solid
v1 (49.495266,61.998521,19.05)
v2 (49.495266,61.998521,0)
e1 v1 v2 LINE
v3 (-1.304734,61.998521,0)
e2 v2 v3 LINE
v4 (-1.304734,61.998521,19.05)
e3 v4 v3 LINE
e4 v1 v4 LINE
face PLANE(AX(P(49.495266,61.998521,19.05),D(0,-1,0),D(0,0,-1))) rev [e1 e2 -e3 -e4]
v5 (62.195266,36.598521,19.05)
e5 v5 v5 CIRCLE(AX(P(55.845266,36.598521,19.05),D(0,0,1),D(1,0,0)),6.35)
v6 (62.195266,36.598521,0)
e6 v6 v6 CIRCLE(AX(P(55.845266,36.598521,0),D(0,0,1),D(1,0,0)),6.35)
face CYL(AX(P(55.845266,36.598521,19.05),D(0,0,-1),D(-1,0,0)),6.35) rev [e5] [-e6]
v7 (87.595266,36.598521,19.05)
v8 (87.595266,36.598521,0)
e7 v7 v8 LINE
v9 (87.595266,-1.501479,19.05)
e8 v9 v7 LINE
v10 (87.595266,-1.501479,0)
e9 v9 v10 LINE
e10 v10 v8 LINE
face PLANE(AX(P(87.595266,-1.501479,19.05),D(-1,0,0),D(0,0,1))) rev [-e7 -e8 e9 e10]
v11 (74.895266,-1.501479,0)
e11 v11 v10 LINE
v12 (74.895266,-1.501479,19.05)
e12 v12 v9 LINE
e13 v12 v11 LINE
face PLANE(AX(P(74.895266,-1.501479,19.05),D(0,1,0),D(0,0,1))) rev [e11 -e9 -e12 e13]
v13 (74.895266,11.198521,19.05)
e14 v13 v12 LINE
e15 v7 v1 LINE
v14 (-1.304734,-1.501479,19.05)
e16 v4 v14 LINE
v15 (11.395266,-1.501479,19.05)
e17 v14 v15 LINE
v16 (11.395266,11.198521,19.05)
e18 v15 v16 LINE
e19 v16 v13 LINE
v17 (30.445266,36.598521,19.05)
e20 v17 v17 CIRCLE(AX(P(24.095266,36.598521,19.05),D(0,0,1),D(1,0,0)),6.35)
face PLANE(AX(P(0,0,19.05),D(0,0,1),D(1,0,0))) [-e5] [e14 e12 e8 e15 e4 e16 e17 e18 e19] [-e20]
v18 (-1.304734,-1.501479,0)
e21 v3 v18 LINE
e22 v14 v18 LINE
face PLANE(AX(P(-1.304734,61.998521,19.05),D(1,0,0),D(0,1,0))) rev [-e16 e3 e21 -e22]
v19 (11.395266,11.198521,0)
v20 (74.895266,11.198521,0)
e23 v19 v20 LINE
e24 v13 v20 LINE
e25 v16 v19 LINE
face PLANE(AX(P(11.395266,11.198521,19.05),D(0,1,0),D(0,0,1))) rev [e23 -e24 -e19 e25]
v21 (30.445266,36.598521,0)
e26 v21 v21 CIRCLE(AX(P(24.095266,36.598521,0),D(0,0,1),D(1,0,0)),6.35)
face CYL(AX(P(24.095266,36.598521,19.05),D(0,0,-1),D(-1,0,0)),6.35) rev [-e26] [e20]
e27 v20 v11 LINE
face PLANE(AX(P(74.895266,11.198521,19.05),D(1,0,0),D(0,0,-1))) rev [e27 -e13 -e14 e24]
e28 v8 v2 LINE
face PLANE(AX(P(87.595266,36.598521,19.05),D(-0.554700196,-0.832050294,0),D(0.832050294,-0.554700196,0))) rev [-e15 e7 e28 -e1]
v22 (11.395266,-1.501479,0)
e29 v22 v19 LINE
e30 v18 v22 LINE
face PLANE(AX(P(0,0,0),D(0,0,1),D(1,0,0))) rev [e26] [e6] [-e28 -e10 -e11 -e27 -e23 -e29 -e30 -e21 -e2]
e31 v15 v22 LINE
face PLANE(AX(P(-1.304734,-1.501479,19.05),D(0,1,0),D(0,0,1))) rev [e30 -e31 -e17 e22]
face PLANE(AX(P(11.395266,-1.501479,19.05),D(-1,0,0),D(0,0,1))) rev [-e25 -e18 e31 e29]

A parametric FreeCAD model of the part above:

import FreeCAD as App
import Part
import Sketcher
Q = App.Units.Quantity

doc = App.newDocument("Part")
params = doc.addObject("Spreadsheet::Sheet", "Params")
for row, (alias, value) in enumerate([
    ("sketch1_diameter", "0.5 in"),
    ("sketch1_width", "2 in"),
    ("sketch1_width2", "0.5 in"),
    ("sketch1_width3", "2.5 in"),
    ("sketch1_height", "1.5 in"),
    ("pad1_length", "0.75 in"),
], start=1):
    params.set(f"A{row}", alias)
    params.set(f"B{row}", "=" + value)
    params.setAlias(f"B{row}", alias)

body = doc.addObject("PartDesign::Body", "Body")

# Sketch on XY plane
sketch1 = doc.addObject("Sketcher::SketchObject", "Sketch")
body.addObject(sketch1)
sketch1.AttachmentSupport = (doc.XY_Plane, [""])
sketch1.MapMode = "FlatFace"
sketch1.addGeometry([
    Part.LineSegment(App.Vector(-1, 62, 0), App.Vector(-1, -2, 0)),  # 0
    Part.LineSegment(App.Vector(-1, -2, 0), App.Vector(11, -2, 0)),  # 1
    Part.LineSegment(App.Vector(11, -2, 0), App.Vector(11, 11, 0)),  # 2
    Part.LineSegment(App.Vector(11, 11, 0), App.Vector(75, 11, 0)),  # 3
    Part.LineSegment(App.Vector(75, 11, 0), App.Vector(75, -2, 0)),  # 4
    Part.LineSegment(App.Vector(75, -2, 0), App.Vector(88, -2, 0)),  # 5
    Part.LineSegment(App.Vector(88, -2, 0), App.Vector(88, 37, 0)),  # 6
    Part.LineSegment(App.Vector(88, 37, 0), App.Vector(49, 62, 0)),  # 7
    Part.LineSegment(App.Vector(49, 62, 0), App.Vector(-1, 62, 0)),  # 8
    Part.Circle(App.Vector(24, 37, 0), App.Vector(0, 0, 1), 6),  # 9
    Part.Circle(App.Vector(56, 37, 0), App.Vector(0, 0, 1), 6),  # 10
], False)
sketch1.addConstraint([
    Sketcher.Constraint("Coincident", 0, 2, 1, 1),
    Sketcher.Constraint("Coincident", 1, 2, 2, 1),
    Sketcher.Constraint("Coincident", 2, 2, 3, 1),
    Sketcher.Constraint("Coincident", 3, 2, 4, 1),
    Sketcher.Constraint("Coincident", 4, 2, 5, 1),
    Sketcher.Constraint("Coincident", 5, 2, 6, 1),
    Sketcher.Constraint("Coincident", 6, 2, 7, 1),
    Sketcher.Constraint("Coincident", 7, 2, 8, 1),
    Sketcher.Constraint("Coincident", 8, 2, 0, 1),
    Sketcher.Constraint("Vertical", 0),
    Sketcher.Constraint("Horizontal", 1),
    Sketcher.Constraint("Vertical", 2),
    Sketcher.Constraint("Horizontal", 3),
    Sketcher.Constraint("Vertical", 4),
    Sketcher.Constraint("Horizontal", 5),
    Sketcher.Constraint("Vertical", 6),
    Sketcher.Constraint("Horizontal", 8),
    Sketcher.Constraint("Equal", 9, 10),
    Sketcher.Constraint("Horizontal", 9, 3, 10, 3),
    Sketcher.Constraint("Horizontal", 1, 2, 4, 2),
    Sketcher.Constraint("Horizontal", 10, 3, 6, 2),
    Sketcher.Constraint("Equal", 1, 5),
    Sketcher.Constraint("Equal", 3, 0),
    Sketcher.Constraint("Equal", 5, 2),
    Sketcher.Constraint("Diameter", 9, Q("0.5 in")),
    Sketcher.Constraint("DistanceX", 8, 2, 8, 1, Q("2 in")),
    Sketcher.Constraint("DistanceX", 1, 1, 1, 2, Q("0.5 in")),
    Sketcher.Constraint("DistanceX", 3, 1, 3, 2, Q("2.5 in")),
    Sketcher.Constraint("DistanceY", 6, 1, 6, 2, Q("1.5 in")),
    Sketcher.Constraint("DistanceX", 0, 2, 9, 3, Q("1 in")),
    Sketcher.Constraint("DistanceX", 9, 3, 10, 3, Q("1.25 in")),
    Sketcher.Constraint("DistanceY", -1, 1, 9, 3, 36.598521),
    Sketcher.Constraint("DistanceX", -1, 1, 9, 3, 24.095266),
])
sketch1.setExpression("Constraints[24]", "Params.sketch1_diameter")
sketch1.setExpression("Constraints[25]", "Params.sketch1_width")
sketch1.setExpression("Constraints[26]", "Params.sketch1_width2")
sketch1.setExpression("Constraints[27]", "Params.sketch1_width3")
sketch1.setExpression("Constraints[28]", "Params.sketch1_height")
pad1 = doc.addObject("PartDesign::Pad", "Pad")
body.addObject(pad1)
pad1.Profile = sketch1
pad1.setExpression("Length", "Params.pad1_length")

doc.recompute()
